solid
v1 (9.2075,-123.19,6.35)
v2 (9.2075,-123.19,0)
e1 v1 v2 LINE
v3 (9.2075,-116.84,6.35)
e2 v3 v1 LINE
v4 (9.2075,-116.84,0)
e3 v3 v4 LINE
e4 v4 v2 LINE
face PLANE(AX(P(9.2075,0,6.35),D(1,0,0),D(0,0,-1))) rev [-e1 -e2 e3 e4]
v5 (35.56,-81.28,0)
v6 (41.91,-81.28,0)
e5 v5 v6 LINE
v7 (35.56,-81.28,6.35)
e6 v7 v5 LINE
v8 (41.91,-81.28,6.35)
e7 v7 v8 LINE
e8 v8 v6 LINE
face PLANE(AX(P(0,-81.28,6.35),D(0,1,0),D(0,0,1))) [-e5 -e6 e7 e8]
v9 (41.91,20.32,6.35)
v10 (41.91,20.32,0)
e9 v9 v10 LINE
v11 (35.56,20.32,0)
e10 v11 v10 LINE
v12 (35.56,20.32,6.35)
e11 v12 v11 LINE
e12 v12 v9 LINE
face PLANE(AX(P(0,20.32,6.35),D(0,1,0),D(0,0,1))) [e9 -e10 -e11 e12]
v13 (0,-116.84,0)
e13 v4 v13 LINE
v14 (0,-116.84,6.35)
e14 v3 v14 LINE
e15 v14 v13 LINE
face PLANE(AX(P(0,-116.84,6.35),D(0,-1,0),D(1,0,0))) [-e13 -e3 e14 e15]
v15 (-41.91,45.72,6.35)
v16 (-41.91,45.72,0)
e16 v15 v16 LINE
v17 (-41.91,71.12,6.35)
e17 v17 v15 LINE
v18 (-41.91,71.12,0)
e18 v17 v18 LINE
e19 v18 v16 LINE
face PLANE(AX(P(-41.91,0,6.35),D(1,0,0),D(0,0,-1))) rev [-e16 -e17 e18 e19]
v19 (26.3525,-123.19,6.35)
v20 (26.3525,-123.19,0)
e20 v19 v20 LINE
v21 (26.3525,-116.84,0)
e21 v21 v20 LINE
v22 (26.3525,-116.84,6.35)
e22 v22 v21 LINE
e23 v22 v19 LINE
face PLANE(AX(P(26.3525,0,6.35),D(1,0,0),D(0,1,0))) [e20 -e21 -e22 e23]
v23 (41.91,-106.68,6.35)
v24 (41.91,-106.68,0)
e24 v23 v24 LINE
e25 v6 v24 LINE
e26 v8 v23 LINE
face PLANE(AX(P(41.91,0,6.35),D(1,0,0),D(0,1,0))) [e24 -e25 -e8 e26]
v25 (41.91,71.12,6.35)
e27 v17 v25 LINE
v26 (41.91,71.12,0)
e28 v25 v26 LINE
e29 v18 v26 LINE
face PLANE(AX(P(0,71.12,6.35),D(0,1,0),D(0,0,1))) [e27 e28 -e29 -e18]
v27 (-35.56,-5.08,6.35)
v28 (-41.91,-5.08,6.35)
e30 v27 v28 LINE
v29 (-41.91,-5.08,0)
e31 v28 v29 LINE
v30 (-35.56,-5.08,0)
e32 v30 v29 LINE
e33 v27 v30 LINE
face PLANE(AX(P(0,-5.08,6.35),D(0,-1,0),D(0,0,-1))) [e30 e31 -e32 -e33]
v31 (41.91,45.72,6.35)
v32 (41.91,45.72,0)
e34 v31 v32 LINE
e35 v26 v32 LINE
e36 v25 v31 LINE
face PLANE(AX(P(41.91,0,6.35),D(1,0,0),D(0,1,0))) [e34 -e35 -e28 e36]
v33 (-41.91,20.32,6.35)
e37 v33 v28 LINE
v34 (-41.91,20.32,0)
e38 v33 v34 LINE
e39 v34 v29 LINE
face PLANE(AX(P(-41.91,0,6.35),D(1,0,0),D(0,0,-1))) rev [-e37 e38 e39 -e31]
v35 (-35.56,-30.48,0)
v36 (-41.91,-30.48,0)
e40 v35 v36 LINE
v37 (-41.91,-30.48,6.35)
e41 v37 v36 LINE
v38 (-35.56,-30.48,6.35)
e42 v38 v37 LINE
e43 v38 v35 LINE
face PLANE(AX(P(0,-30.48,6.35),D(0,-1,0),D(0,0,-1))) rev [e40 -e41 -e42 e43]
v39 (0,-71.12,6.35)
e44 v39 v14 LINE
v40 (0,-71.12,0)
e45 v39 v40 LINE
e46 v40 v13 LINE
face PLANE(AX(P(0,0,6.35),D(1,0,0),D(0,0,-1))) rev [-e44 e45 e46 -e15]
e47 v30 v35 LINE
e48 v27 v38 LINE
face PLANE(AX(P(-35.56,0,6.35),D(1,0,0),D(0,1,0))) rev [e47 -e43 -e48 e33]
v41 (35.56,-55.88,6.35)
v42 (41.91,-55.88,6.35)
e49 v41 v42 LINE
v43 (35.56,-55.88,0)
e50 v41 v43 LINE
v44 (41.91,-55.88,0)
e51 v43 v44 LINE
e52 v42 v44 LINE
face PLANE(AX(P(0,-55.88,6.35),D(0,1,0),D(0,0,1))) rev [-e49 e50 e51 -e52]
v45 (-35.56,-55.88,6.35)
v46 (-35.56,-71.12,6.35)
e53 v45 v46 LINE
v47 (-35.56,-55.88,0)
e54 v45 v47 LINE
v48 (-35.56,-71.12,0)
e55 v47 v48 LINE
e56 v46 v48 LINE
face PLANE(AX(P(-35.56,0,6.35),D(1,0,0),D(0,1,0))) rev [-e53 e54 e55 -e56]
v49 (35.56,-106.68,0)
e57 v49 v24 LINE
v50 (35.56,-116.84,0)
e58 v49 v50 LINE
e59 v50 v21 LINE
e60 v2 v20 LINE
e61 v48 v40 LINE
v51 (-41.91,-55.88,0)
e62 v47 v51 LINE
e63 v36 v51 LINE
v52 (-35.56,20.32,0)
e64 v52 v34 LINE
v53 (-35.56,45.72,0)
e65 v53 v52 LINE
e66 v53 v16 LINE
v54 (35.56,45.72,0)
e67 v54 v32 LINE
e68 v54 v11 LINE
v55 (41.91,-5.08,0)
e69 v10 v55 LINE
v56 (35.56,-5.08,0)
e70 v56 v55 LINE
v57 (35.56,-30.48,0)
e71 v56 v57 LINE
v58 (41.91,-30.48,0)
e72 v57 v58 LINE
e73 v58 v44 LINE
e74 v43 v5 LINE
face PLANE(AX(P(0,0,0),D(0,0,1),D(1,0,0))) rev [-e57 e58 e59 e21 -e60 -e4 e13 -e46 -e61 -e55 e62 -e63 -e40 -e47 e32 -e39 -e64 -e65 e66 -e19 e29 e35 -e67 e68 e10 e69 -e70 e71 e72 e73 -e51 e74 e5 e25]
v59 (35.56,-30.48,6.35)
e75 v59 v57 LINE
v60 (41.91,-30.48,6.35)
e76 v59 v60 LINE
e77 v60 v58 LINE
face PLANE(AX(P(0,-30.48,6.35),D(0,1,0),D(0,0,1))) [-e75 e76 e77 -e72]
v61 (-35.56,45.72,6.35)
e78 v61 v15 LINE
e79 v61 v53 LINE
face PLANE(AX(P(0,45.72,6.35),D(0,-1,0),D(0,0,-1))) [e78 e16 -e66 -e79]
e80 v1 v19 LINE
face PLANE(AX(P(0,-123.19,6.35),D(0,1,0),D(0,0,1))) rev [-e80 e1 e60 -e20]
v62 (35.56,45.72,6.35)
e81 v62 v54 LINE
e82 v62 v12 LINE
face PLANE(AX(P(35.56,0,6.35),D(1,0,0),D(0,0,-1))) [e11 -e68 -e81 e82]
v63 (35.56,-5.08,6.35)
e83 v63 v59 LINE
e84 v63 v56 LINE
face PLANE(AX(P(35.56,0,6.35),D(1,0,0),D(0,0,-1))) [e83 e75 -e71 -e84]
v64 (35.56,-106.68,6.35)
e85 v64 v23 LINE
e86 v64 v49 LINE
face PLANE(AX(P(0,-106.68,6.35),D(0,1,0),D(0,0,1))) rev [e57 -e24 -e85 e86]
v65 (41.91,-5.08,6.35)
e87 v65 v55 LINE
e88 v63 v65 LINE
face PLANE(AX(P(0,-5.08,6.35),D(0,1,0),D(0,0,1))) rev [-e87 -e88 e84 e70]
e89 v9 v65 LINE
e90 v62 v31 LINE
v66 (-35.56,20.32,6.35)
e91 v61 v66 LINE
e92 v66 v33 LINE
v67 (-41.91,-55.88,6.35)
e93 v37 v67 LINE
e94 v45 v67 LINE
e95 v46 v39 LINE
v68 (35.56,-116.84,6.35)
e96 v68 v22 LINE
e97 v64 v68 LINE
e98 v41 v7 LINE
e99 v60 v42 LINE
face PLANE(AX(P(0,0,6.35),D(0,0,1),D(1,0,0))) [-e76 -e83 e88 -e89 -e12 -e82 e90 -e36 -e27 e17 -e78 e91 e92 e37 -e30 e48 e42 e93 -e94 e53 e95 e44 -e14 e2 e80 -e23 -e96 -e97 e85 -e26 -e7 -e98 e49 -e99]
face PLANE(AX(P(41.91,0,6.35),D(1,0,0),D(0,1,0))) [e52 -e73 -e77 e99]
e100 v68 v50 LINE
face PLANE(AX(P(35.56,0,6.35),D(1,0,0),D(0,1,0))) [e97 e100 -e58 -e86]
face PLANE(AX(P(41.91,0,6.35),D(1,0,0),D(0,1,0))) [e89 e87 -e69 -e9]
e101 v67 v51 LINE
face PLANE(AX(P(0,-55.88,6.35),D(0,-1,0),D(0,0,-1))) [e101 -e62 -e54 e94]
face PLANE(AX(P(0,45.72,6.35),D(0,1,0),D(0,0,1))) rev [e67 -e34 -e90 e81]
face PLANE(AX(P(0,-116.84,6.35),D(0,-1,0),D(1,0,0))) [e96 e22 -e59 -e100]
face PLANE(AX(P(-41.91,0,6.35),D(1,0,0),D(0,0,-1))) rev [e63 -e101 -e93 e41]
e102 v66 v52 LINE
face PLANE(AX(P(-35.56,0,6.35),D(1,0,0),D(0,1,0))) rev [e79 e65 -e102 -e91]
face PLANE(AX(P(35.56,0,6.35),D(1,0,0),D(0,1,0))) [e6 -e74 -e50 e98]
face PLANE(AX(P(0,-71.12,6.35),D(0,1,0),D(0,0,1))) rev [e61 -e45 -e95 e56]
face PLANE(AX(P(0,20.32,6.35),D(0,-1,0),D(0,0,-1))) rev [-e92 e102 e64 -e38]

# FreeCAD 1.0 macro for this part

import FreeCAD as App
import Part
import Sketcher
Q = App.Units.Quantity

doc = App.newDocument("Part")
body = doc.addObject("PartDesign::Body", "Body")

sketch1 = body.newObject("Sketcher::SketchObject", "Sketch")
sketch1.AttachmentSupport = (doc.getObject("XY_Plane"), [""])
sketch1.MapMode = "FlatFace"
sketch1.addGeometry([
    Part.LineSegment(App.Vector(-35.56, -55.88, 0), App.Vector(-35.56, -71.12, 0)),
    Part.LineSegment(App.Vector(-35.56, -71.12, 0), App.Vector(0, -71.12, 0)),
    Part.LineSegment(App.Vector(0, -71.12, 0), App.Vector(0, -116.84, 0)),
    Part.LineSegment(App.Vector(0, -116.84, 0), App.Vector(9.2075, -116.84, 0)),
    Part.LineSegment(App.Vector(9.2075, -116.84, 0), App.Vector(9.2075, -123.19, 0)),
    Part.LineSegment(App.Vector(9.2075, -123.19, 0), App.Vector(26.3525, -123.19, 0)),
    Part.LineSegment(App.Vector(26.3525, -123.19, 0), App.Vector(26.3525, -116.84, 0)),
    Part.LineSegment(App.Vector(26.3525, -116.84, 0), App.Vector(35.56, -116.84, 0)),
    Part.LineSegment(App.Vector(35.56, -116.84, 0), App.Vector(35.56, -106.68, 0)),
    Part.LineSegment(App.Vector(35.56, -106.68, 0), App.Vector(41.91, -106.68, 0)),
    Part.LineSegment(App.Vector(41.91, -106.68, 0), App.Vector(41.91, -81.28, 0)),
    Part.LineSegment(App.Vector(41.91, -81.28, 0), App.Vector(35.56, -81.28, 0)),
    Part.LineSegment(App.Vector(35.56, -81.28, 0), App.Vector(35.56, -55.88, 0)),
    Part.LineSegment(App.Vector(35.56, -55.88, 0), App.Vector(41.91, -55.88, 0)),
    Part.LineSegment(App.Vector(41.91, -55.88, 0), App.Vector(41.91, -30.48, 0)),
    Part.LineSegment(App.Vector(41.91, -30.48, 0), App.Vector(35.56, -30.48, 0)),
    Part.LineSegment(App.Vector(35.56, -30.48, 0), App.Vector(35.56, -5.08, 0)),
    Part.LineSegment(App.Vector(35.56, -5.08, 0), App.Vector(41.91, -5.08, 0)),
    Part.LineSegment(App.Vector(41.91, -5.08, 0), App.Vector(41.91, 20.32, 0)),
    Part.LineSegment(App.Vector(41.91, 20.32, 0), App.Vector(35.56, 20.32, 0)),
    Part.LineSegment(App.Vector(35.56, 20.32, 0), App.Vector(35.56, 45.72, 0)),
    Part.LineSegment(App.Vector(35.56, 45.72, 0), App.Vector(41.91, 45.72, 0)),
    Part.LineSegment(App.Vector(41.91, 45.72, 0), App.Vector(41.91, 71.12, 0)),
    Part.LineSegment(App.Vector(41.91, 71.12, 0), App.Vector(-41.91, 71.12, 0)),
    Part.LineSegment(App.Vector(-41.91, 71.12, 0), App.Vector(-41.91, 45.72, 0)),
    Part.LineSegment(App.Vector(-41.91, 45.72, 0), App.Vector(-35.56, 45.72, 0)),
    Part.LineSegment(App.Vector(-35.56, 45.72, 0), App.Vector(-35.56, 20.32, 0)),
    Part.LineSegment(App.Vector(-35.56, 20.32, 0), App.Vector(-41.91, 20.32, 0)),
    Part.LineSegment(App.Vector(-41.91, 20.32, 0), App.Vector(-41.91, -5.08, 0)),
    Part.LineSegment(App.Vector(-41.91, -5.08, 0), App.Vector(-35.56, -5.08, 0)),
    Part.LineSegment(App.Vector(-35.56, -5.08, 0), App.Vector(-35.56, -30.48, 0)),
    Part.LineSegment(App.Vector(-35.56, -30.48, 0), App.Vector(-41.91, -30.48, 0)),
    Part.LineSegment(App.Vector(-41.91, -30.48, 0), App.Vector(-41.91, -55.88, 0)),
    Part.LineSegment(App.Vector(-41.91, -55.88, 0), App.Vector(-35.56, -55.88, 0)),
], False)
sketch1.addConstraint([
    Sketcher.Constraint("Coincident", 0, 2, 1, 1),
    Sketcher.Constraint("Coincident", 1, 2, 2, 1),
    Sketcher.Constraint("Coincident", 2, 2, 3, 1),
    Sketcher.Constraint("Coincident", 3, 2, 4, 1),
    Sketcher.Constraint("Coincident", 4, 2, 5, 1),
    Sketcher.Constraint("Coincident", 5, 2, 6, 1),
    Sketcher.Constraint("Coincident", 6, 2, 7, 1),
    Sketcher.Constraint("Coincident", 7, 2, 8, 1),
    Sketcher.Constraint("Coincident", 8, 2, 9, 1),
    Sketcher.Constraint("Coincident", 9, 2, 10, 1),
    Sketcher.Constraint("Coincident", 10, 2, 11, 1),
    Sketcher.Constraint("Coincident", 11, 2, 12, 1),
    Sketcher.Constraint("Coincident", 12, 2, 13, 1),
    Sketcher.Constraint("Coincident", 13, 2, 14, 1),
    Sketcher.Constraint("Coincident", 14, 2, 15, 1),
    Sketcher.Constraint("Coincident", 15, 2, 16, 1),
    Sketcher.Constraint("Coincident", 16, 2, 17, 1),
    Sketcher.Constraint("Coincident", 17, 2, 18, 1),
    Sketcher.Constraint("Coincident", 18, 2, 19, 1),
    Sketcher.Constraint("Coincident", 19, 2, 20, 1),
    Sketcher.Constraint("Coincident", 20, 2, 21, 1),
    Sketcher.Constraint("Coincident", 21, 2, 22, 1),
    Sketcher.Constraint("Coincident", 22, 2, 23, 1),
    Sketcher.Constraint("Coincident", 23, 2, 24, 1),
    Sketcher.Constraint("Coincident", 24, 2, 25, 1),
    Sketcher.Constraint("Coincident", 25, 2, 26, 1),
    Sketcher.Constraint("Coincident", 26, 2, 27, 1),
    Sketcher.Constraint("Coincident", 27, 2, 28, 1),
    Sketcher.Constraint("Coincident", 28, 2, 29, 1),
    Sketcher.Constraint("Coincident", 29, 2, 30, 1),
    Sketcher.Constraint("Coincident", 30, 2, 31, 1),
    Sketcher.Constraint("Coincident", 31, 2, 32, 1),
    Sketcher.Constraint("Coincident", 32, 2, 33, 1),
    Sketcher.Constraint("Coincident", 33, 2, 0, 1),
    Sketcher.Constraint("Vertical", 0),
    Sketcher.Constraint("Horizontal", 1),
    Sketcher.Constraint("Vertical", 2),
    Sketcher.Constraint("Horizontal", 3),
    Sketcher.Constraint("Vertical", 4),
    Sketcher.Constraint("Horizontal", 5),
    Sketcher.Constraint("Vertical", 6),
    Sketcher.Constraint("Horizontal", 7),
    Sketcher.Constraint("Vertical", 8),
    Sketcher.Constraint("Horizontal", 9),
    Sketcher.Constraint("Vertical", 10),
    Sketcher.Constraint("Horizontal", 11),
    Sketcher.Constraint("Vertical", 12),
    Sketcher.Constraint("Horizontal", 13),
    Sketcher.Constraint("Vertical", 14),
    Sketcher.Constraint("Horizontal", 15),
    Sketcher.Constraint("Vertical", 16),
    Sketcher.Constraint("Horizontal", 17),
    Sketcher.Constraint("Vertical", 18),
    Sketcher.Constraint("Horizontal", 19),
    Sketcher.Constraint("Vertical", 20),
    Sketcher.Constraint("Horizontal", 21),
    Sketcher.Constraint("Vertical", 22),
    Sketcher.Constraint("Horizontal", 23),
    Sketcher.Constraint("Vertical", 24),
    Sketcher.Constraint("Horizontal", 25),
    Sketcher.Constraint("Vertical", 26),
    Sketcher.Constraint("Horizontal", 27),
    Sketcher.Constraint("Vertical", 28),
    Sketcher.Constraint("Horizontal", 29),
    Sketcher.Constraint("Vertical", 30),
    Sketcher.Constraint("Horizontal", 31),
    Sketcher.Constraint("Vertical", 32),
    Sketcher.Constraint("Horizontal", 33),
    Sketcher.Constraint("Symmetric", 21, 2, 24, 2, -2),
    Sketcher.Constraint("Symmetric", 19, 2, 26, 2, -2),
    Sketcher.Constraint("Symmetric", 17, 2, 28, 2, -2),
    Sketcher.Constraint("Symmetric", 15, 2, 30, 2, -2),
    Sketcher.Constraint("Symmetric", 13, 2, 32, 2, -2),
    Sketcher.Constraint("PointOnObject", 1, 2, -2),
    Sketcher.Constraint("Horizontal", 3, 2, 6, 2),
    Sketcher.Constraint("Vertical", 8, 2, 11, 2),
    Sketcher.Constraint("Vertical", 10, 2, 13, 2),
    Sketcher.Constraint("Vertical", 12, 2, 15, 2),
    Sketcher.Constraint("Vertical", 14, 2, 17, 2),
    Sketcher.Constraint("Vertical", 16, 2, 19, 2),
    Sketcher.Constraint("Vertical", 18, 2, 21, 2),
    Sketcher.Constraint("Vertical", 0, 2, 25, 2),
    Sketcher.Constraint("Equal", 3, 7),
    Sketcher.Constraint("Equal", 33, 4),
    Sketcher.Constraint("Equal", 10, 12),
    Sketcher.Constraint("Equal", 12, 14),
    Sketcher.Constraint("Equal", 14, 16),
    Sketcher.Constraint("Equal", 16, 18),
    Sketcher.Constraint("Equal", 18, 20),
    Sketcher.Constraint("Equal", 20, 22),
    Sketcher.Constraint("DistanceY", 10, 1, 10, 2, Q("1 in")),
    Sketcher.Constraint("DistanceX", 1, 1, 1, 2, Q("1.4 in")),
    Sketcher.Constraint("DistanceX", 23, 2, 23, 1, Q("3.3 in")),
    Sketcher.Constraint("DistanceY", 0, 2, 0, 1, Q("0.6 in")),
    Sketcher.Constraint("DistanceY", 2, 2, 2, 1, Q("1.8 in")),
    Sketcher.Constraint("DistanceY", 0, 2, -1, 1, Q("2.8 in")),
    Sketcher.Constraint("DistanceX", 5, 1, 5, 2, Q("0.675 in")),
])
pad1 = body.newObject("PartDesign::Pad", "Pad")
pad1.Profile = sketch1
pad1.Length = Q("0.25 in")

doc.recompute()
